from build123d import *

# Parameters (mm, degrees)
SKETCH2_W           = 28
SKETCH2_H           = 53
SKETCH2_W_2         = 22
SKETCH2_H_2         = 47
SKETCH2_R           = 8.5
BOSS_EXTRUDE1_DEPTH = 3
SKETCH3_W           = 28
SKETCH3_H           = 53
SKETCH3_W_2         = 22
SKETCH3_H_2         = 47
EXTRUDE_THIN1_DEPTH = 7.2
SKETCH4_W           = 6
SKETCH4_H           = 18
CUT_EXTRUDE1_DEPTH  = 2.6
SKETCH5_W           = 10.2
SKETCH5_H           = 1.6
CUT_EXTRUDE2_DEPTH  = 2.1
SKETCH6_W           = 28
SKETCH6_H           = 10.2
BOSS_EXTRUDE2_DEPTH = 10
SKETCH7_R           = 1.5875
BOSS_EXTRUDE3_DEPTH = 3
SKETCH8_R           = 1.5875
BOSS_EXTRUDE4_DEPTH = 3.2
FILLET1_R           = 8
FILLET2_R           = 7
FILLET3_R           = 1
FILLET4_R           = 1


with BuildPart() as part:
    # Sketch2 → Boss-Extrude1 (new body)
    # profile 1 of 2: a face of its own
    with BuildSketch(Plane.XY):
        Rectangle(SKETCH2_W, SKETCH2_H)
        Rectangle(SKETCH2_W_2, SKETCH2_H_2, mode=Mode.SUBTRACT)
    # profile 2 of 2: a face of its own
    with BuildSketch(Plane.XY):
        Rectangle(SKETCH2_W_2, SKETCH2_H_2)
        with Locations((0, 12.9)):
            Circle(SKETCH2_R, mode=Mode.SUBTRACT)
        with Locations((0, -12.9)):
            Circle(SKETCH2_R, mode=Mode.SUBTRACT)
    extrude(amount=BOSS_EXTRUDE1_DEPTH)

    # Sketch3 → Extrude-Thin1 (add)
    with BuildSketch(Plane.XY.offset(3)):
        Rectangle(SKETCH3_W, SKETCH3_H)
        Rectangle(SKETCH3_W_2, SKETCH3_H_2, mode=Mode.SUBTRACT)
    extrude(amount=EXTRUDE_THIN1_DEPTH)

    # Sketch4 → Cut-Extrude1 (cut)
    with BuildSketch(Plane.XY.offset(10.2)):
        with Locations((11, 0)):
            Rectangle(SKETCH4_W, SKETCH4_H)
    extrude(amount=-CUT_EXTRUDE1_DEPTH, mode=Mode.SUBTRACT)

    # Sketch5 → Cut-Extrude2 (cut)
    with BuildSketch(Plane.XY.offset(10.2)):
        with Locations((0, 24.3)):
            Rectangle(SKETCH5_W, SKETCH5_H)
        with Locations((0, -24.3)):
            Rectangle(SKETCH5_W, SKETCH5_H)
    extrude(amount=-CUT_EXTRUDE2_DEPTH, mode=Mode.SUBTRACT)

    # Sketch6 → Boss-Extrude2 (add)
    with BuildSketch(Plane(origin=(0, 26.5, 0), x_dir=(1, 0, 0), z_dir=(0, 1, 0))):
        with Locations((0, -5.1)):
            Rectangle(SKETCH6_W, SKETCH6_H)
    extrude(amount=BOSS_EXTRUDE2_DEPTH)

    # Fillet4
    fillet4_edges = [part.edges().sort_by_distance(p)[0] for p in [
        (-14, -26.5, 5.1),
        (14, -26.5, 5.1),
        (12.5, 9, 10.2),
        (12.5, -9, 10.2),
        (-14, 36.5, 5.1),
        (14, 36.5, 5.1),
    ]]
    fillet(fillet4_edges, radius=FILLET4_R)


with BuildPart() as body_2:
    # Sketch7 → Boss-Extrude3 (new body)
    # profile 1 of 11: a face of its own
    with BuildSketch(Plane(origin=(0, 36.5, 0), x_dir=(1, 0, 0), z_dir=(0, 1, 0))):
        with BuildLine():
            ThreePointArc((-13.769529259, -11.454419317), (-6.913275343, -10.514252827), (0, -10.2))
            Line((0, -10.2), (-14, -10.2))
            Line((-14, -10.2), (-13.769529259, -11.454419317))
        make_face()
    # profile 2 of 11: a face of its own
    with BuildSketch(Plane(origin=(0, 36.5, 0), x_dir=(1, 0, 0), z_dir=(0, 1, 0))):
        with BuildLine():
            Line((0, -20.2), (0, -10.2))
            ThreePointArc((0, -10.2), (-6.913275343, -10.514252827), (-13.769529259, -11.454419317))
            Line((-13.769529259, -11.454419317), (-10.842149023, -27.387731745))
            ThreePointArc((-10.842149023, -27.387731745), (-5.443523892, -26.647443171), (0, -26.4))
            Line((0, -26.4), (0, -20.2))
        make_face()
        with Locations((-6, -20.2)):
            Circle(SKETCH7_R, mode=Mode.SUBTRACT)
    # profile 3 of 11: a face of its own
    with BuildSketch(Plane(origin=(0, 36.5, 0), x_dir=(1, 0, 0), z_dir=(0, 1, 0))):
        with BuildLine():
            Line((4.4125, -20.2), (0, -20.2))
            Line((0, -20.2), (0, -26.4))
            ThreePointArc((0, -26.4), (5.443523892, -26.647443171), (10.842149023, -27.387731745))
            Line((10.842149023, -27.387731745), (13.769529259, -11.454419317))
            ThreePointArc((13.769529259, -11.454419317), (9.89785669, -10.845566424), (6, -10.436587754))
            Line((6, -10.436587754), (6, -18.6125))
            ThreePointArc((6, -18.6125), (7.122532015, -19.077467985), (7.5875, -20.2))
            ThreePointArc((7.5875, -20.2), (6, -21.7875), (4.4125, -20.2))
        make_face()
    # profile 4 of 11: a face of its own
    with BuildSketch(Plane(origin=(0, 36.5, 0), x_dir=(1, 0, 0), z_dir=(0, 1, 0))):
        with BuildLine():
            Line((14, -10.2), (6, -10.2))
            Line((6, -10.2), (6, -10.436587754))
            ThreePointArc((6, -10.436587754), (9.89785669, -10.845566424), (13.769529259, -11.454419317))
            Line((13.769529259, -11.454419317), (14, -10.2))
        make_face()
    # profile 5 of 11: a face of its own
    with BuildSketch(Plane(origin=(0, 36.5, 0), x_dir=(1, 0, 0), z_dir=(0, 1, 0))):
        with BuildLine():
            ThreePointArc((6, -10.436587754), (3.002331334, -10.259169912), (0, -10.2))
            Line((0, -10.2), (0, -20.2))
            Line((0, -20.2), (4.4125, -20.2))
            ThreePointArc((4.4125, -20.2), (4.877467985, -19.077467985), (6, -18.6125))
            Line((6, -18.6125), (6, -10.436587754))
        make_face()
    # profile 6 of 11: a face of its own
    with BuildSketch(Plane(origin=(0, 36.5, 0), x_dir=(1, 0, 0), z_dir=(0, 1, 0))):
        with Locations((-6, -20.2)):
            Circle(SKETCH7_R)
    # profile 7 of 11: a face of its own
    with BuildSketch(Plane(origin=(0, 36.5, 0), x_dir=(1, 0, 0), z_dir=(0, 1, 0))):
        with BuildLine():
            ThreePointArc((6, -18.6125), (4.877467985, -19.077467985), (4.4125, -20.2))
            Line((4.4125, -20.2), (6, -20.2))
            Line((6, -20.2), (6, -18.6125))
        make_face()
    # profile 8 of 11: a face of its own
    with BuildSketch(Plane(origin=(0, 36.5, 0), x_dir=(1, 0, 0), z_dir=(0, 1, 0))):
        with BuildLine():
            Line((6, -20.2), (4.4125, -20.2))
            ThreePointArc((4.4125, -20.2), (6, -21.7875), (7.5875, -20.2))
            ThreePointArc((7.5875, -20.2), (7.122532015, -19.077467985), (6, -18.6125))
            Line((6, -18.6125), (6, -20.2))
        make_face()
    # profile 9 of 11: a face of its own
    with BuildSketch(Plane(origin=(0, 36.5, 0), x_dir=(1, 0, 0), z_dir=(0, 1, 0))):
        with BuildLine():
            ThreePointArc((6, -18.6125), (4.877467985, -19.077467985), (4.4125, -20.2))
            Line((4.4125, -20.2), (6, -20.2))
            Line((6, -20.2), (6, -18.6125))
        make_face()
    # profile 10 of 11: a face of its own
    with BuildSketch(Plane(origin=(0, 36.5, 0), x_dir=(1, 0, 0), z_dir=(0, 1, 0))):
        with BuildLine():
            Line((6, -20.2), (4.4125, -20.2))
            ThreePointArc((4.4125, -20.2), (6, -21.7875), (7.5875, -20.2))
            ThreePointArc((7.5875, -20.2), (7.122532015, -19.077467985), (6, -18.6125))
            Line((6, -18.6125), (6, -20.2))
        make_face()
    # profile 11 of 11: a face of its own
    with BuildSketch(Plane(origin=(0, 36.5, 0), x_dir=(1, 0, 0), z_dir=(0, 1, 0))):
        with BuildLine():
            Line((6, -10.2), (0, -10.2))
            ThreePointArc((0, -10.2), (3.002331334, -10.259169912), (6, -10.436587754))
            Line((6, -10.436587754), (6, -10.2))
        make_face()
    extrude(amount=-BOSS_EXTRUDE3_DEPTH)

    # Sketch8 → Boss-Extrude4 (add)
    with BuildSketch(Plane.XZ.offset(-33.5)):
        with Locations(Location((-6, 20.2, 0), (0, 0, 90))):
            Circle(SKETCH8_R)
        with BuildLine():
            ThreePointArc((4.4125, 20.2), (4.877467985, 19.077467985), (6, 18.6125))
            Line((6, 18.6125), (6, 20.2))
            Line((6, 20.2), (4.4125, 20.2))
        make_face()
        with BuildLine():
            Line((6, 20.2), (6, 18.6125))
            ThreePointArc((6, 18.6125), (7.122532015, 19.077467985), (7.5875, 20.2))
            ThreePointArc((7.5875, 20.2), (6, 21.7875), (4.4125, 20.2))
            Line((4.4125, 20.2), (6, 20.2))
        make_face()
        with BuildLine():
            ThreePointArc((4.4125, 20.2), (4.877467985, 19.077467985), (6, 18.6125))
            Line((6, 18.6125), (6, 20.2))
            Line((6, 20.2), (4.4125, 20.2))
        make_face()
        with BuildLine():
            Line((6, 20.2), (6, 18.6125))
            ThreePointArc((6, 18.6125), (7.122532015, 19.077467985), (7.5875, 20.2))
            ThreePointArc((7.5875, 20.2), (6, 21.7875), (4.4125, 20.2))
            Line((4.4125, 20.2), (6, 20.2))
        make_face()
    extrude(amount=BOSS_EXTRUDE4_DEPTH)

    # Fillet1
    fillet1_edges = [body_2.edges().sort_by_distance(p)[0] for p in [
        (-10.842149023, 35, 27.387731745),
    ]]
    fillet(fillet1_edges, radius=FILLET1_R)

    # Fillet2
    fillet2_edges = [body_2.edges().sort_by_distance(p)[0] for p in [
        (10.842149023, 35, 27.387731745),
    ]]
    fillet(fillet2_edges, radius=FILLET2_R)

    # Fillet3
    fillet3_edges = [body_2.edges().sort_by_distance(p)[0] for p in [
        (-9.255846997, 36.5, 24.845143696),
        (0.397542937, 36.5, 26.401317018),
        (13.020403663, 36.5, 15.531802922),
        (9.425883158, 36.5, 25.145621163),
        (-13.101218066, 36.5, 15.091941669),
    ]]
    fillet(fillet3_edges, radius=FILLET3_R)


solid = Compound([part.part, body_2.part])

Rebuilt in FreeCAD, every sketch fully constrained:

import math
import FreeCAD as App
import Part
import Sketcher
from FreeCAD import Vector


def edges_at(feature, points):
    """Names of the edges that pass closest to the given points."""
    edges = feature.Shape.Edges
    near = lambda p: min(range(len(edges)), key=lambda i: edges[i].distToShape(Part.Vertex(*p))[0])
    return sorted({f"Edge{near(p) + 1}" for p in points})

doc = App.newDocument("Part")
body = doc.addObject("PartDesign::Body", "Body")

# Sketch on XY plane
sketch1 = body.newObject("Sketcher::SketchObject", "Sketch")
sketch1.AttachmentSupport = (doc.getObject("XY_Plane"), [""])
sketch1.MapMode = "FlatFace"
sketch1.addGeometry(Part.LineSegment(Vector(-14, 26.5, 0), Vector(-14, -26.5, 0)), False)
sketch1.addGeometry(Part.LineSegment(Vector(-14, -26.5, 0), Vector(14, -26.5, 0)), False)
sketch1.addGeometry(Part.LineSegment(Vector(14, -26.5, 0), Vector(14, 26.5, 0)), False)
sketch1.addGeometry(Part.LineSegment(Vector(14, 26.5, 0), Vector(-14, 26.5, 0)), False)
sketch1.addGeometry(Part.Circle(Vector(0, -12.9, 0), Vector(0, 0, 1), 8.5), False)
sketch1.addGeometry(Part.Circle(Vector(0, 12.9, 0), Vector(0, 0, 1), 8.5), False)
sketch1.addConstraint(Sketcher.Constraint("Coincident", 0, 2, 1, 1))
sketch1.addConstraint(Sketcher.Constraint("Coincident", 1, 2, 2, 1))
sketch1.addConstraint(Sketcher.Constraint("Coincident", 2, 2, 3, 1))
sketch1.addConstraint(Sketcher.Constraint("Coincident", 3, 2, 0, 1))
sketch1.addConstraint(Sketcher.Constraint("Vertical", 0))
sketch1.addConstraint(Sketcher.Constraint("Horizontal", 1))
sketch1.addConstraint(Sketcher.Constraint("Vertical", 2))
sketch1.addConstraint(Sketcher.Constraint("Horizontal", 3))
sketch1.addConstraint(Sketcher.Constraint("Equal", 4, 5))
sketch1.addConstraint(Sketcher.Constraint("Symmetric", 4, 3, 5, 3, -1, 1))
sketch1.addConstraint(Sketcher.Constraint("Symmetric", 0, 2, 2, 2, -1, 1))
sketch1.addConstraint(Sketcher.Constraint("PointOnObject", 4, 3, -2))
sketch1.addConstraint(Sketcher.Constraint("Diameter", 4, 17.0))
sketch1.addConstraint(Sketcher.Constraint("DistanceX", 1, 1, 1, 2, 28.0))
sketch1.addConstraint(Sketcher.Constraint("DistanceY", 0, 2, 0, 1, 53.0))
sketch1.addConstraint(Sketcher.Constraint("DistanceY", 4, 3, -1, 1, 12.9))
pad1 = body.newObject("PartDesign::Pad", "Pad")
pad1.Profile = sketch1
pad1.Length = 3

# Sketch on XY plane
sketch2 = body.newObject("Sketcher::SketchObject", "Sketch001")
sketch2.AttachmentSupport = (doc.getObject("XY_Plane"), [""])
sketch2.MapMode = "FlatFace"
sketch2.AttachmentOffset = App.Placement(Vector(0, 0, 3), App.Rotation())
sketch2.addGeometry(Part.LineSegment(Vector(-14, 26.5, 0), Vector(-14, -26.5, 0)), False)
sketch2.addGeometry(Part.LineSegment(Vector(-14, -26.5, 0), Vector(14, -26.5, 0)), False)
sketch2.addGeometry(Part.LineSegment(Vector(14, -26.5, 0), Vector(14, 26.5, 0)), False)
sketch2.addGeometry(Part.LineSegment(Vector(14, 26.5, 0), Vector(-14, 26.5, 0)), False)
sketch2.addGeometry(Part.LineSegment(Vector(11, -23.5, 0), Vector(-11, -23.5, 0)), False)
sketch2.addGeometry(Part.LineSegment(Vector(-11, -23.5, 0), Vector(-11, 23.5, 0)), False)
sketch2.addGeometry(Part.LineSegment(Vector(-11, 23.5, 0), Vector(11, 23.5, 0)), False)
sketch2.addGeometry(Part.LineSegment(Vector(11, 23.5, 0), Vector(11, -23.5, 0)), False)
sketch2.addConstraint(Sketcher.Constraint("Coincident", 0, 2, 1, 1))
sketch2.addConstraint(Sketcher.Constraint("Coincident", 1, 2, 2, 1))
sketch2.addConstraint(Sketcher.Constraint("Coincident", 2, 2, 3, 1))
sketch2.addConstraint(Sketcher.Constraint("Coincident", 3, 2, 0, 1))
sketch2.addConstraint(Sketcher.Constraint("Coincident", 4, 2, 5, 1))
sketch2.addConstraint(Sketcher.Constraint("Coincident", 5, 2, 6, 1))
sketch2.addConstraint(Sketcher.Constraint("Coincident", 6, 2, 7, 1))
sketch2.addConstraint(Sketcher.Constraint("Coincident", 7, 2, 4, 1))
sketch2.addConstraint(Sketcher.Constraint("Vertical", 0))
sketch2.addConstraint(Sketcher.Constraint("Horizontal", 1))
sketch2.addConstraint(Sketcher.Constraint("Vertical", 2))
sketch2.addConstraint(Sketcher.Constraint("Horizontal", 3))
sketch2.addConstraint(Sketcher.Constraint("Horizontal", 4))
sketch2.addConstraint(Sketcher.Constraint("Vertical", 5))
sketch2.addConstraint(Sketcher.Constraint("Horizontal", 6))
sketch2.addConstraint(Sketcher.Constraint("Vertical", 7))
sketch2.addConstraint(Sketcher.Constraint("Symmetric", 0, 2, 2, 2, -1, 1))
sketch2.addConstraint(Sketcher.Constraint("Symmetric", 4, 2, 6, 2, -1, 1))
sketch2.addConstraint(Sketcher.Constraint("DistanceX", 1, 1, 1, 2, 28.0))
sketch2.addConstraint(Sketcher.Constraint("DistanceX", 4, 2, 4, 1, 22.0))
sketch2.addConstraint(Sketcher.Constraint("DistanceY", 0, 2, 0, 1, 53.0))
sketch2.addConstraint(Sketcher.Constraint("DistanceY", 5, 1, 5, 2, 47.0))
pad2 = body.newObject("PartDesign::Pad", "Pad001")
pad2.Profile = sketch2
pad2.Length = 7.2

# Sketch on XY plane
sketch3 = body.newObject("Sketcher::SketchObject", "Sketch002")
sketch3.AttachmentSupport = (doc.getObject("XY_Plane"), [""])
sketch3.MapMode = "FlatFace"
sketch3.AttachmentOffset = App.Placement(Vector(0, 0, 10.2), App.Rotation())
sketch3.addGeometry(Part.LineSegment(Vector(8, 9, 0), Vector(8, -9, 0)), False)
sketch3.addGeometry(Part.LineSegment(Vector(8, -9, 0), Vector(14, -9, 0)), False)
sketch3.addGeometry(Part.LineSegment(Vector(14, -9, 0), Vector(14, 9, 0)), False)
sketch3.addGeometry(Part.LineSegment(Vector(14, 9, 0), Vector(8, 9, 0)), False)
sketch3.addConstraint(Sketcher.Constraint("Coincident", 0, 2, 1, 1))
sketch3.addConstraint(Sketcher.Constraint("Coincident", 1, 2, 2, 1))
sketch3.addConstraint(Sketcher.Constraint("Coincident", 2, 2, 3, 1))
sketch3.addConstraint(Sketcher.Constraint("Coincident", 3, 2, 0, 1))
sketch3.addConstraint(Sketcher.Constraint("Vertical", 0))
sketch3.addConstraint(Sketcher.Constraint("Horizontal", 1))
sketch3.addConstraint(Sketcher.Constraint("Vertical", 2))
sketch3.addConstraint(Sketcher.Constraint("Horizontal", 3))
sketch3.addConstraint(Sketcher.Constraint("DistanceX", 1, 1, 1, 2, 6.0))
sketch3.addConstraint(Sketcher.Constraint("DistanceY", 0, 2, 0, 1, 18.0))
sketch3.addConstraint(Sketcher.Constraint("DistanceX", -1, 1, 0, 2, 8.0))
sketch3.addConstraint(Sketcher.Constraint("DistanceY", 0, 2, -1, 1, 9.0))
pocket1 = body.newObject("PartDesign::Pocket", "Pocket")
pocket1.Profile = sketch3
pocket1.Length = 2.6

# Sketch on XY plane
sketch4 = body.newObject("Sketcher::SketchObject", "Sketch003")
sketch4.AttachmentSupport = (doc.getObject("XY_Plane"), [""])
sketch4.MapMode = "FlatFace"
sketch4.AttachmentOffset = App.Placement(Vector(0, 0, 10.2), App.Rotation())
sketch4.addGeometry(Part.LineSegment(Vector(-5.1, 25.1, 0), Vector(-5.1, 23.5, 0)), False)
sketch4.addGeometry(Part.LineSegment(Vector(-5.1, 23.5, 0), Vector(5.1, 23.5, 0)), False)
sketch4.addGeometry(Part.LineSegment(Vector(5.1, 23.5, 0), Vector(5.1, 25.1, 0)), False)
sketch4.addGeometry(Part.LineSegment(Vector(5.1, 25.1, 0), Vector(-5.1, 25.1, 0)), False)
sketch4.addGeometry(Part.LineSegment(Vector(-5.1, -23.5, 0), Vector(-5.1, -25.1, 0)), False)
sketch4.addGeometry(Part.LineSegment(Vector(-5.1, -25.1, 0), Vector(5.1, -25.1, 0)), False)
sketch4.addGeometry(Part.LineSegment(Vector(5.1, -25.1, 0), Vector(5.1, -23.5, 0)), False)
sketch4.addGeometry(Part.LineSegment(Vector(5.1, -23.5, 0), Vector(-5.1, -23.5, 0)), False)
sketch4.addConstraint(Sketcher.Constraint("Coincident", 0, 2, 1, 1))
sketch4.addConstraint(Sketcher.Constraint("Coincident", 1, 2, 2, 1))
sketch4.addConstraint(Sketcher.Constraint("Coincident", 2, 2, 3, 1))
sketch4.addConstraint(Sketcher.Constraint("Coincident", 3, 2, 0, 1))
sketch4.addConstraint(Sketcher.Constraint("Coincident", 4, 2, 5, 1))
sketch4.addConstraint(Sketcher.Constraint("Coincident", 5, 2, 6, 1))
sketch4.addConstraint(Sketcher.Constraint("Coincident", 6, 2, 7, 1))
sketch4.addConstraint(Sketcher.Constraint("Coincident", 7, 2, 4, 1))
sketch4.addConstraint(Sketcher.Constraint("Vertical", 0))
sketch4.addConstraint(Sketcher.Constraint("Horizontal", 1))
sketch4.addConstraint(Sketcher.Constraint("Vertical", 2))
sketch4.addConstraint(Sketcher.Constraint("Horizontal", 3))
sketch4.addConstraint(Sketcher.Constraint("Vertical", 4))
sketch4.addConstraint(Sketcher.Constraint("Horizontal", 5))
sketch4.addConstraint(Sketcher.Constraint("Vertical", 6))
sketch4.addConstraint(Sketcher.Constraint("Horizontal", 7))
sketch4.addConstraint(Sketcher.Constraint("Symmetric", 2, 2, 4, 2, -1, 1))
sketch4.addConstraint(Sketcher.Constraint("Symmetric", 0, 2, 6, 2, -1, 1))
sketch4.addConstraint(Sketcher.Constraint("Vertical", 3, 2, 4, 2))
sketch4.addConstraint(Sketcher.Constraint("DistanceX", 1, 1, 1, 2, 10.2))
sketch4.addConstraint(Sketcher.Constraint("DistanceY", 0, 2, 0, 1, 1.6))
sketch4.addConstraint(Sketcher.Constraint("DistanceY", 6, 2, 1, 2, 47.0))
pocket2 = body.newObject("PartDesign::Pocket", "Pocket001")
pocket2.Profile = sketch4
pocket2.Length = 2.1

# Sketch on XZ plane
sketch5 = body.newObject("Sketcher::SketchObject", "Sketch004")
sketch5.AttachmentSupport = (doc.getObject("XZ_Plane"), [""])
sketch5.MapMode = "FlatFace"
sketch5.AttachmentOffset = App.Placement(Vector(0, 0, -26.5), App.Rotation())
sketch5.addGeometry(Part.LineSegment(Vector(-14, 0, 0), Vector(-14, 10.2, 0)), False)
sketch5.addGeometry(Part.LineSegment(Vector(-14, 10.2, 0), Vector(14, 10.2, 0)), False)
sketch5.addGeometry(Part.LineSegment(Vector(14, 10.2, 0), Vector(14, 0, 0)), False)
sketch5.addGeometry(Part.LineSegment(Vector(14, 0, 0), Vector(-14, 0, 0)), False)
sketch5.addConstraint(Sketcher.Constraint("Coincident", 0, 2, 1, 1))
sketch5.addConstraint(Sketcher.Constraint("Coincident", 1, 2, 2, 1))
sketch5.addConstraint(Sketcher.Constraint("Coincident", 2, 2, 3, 1))
sketch5.addConstraint(Sketcher.Constraint("Coincident", 3, 2, 0, 1))
sketch5.addConstraint(Sketcher.Constraint("Vertical", 0))
sketch5.addConstraint(Sketcher.Constraint("Horizontal", 1))
sketch5.addConstraint(Sketcher.Constraint("Vertical", 2))
sketch5.addConstraint(Sketcher.Constraint("Horizontal", 3))
sketch5.addConstraint(Sketcher.Constraint("Symmetric", 2, 2, 3, 2, -1, 1))
sketch5.addConstraint(Sketcher.Constraint("DistanceX", 1, 1, 1, 2, 28.0))
sketch5.addConstraint(Sketcher.Constraint("DistanceY", 0, 1, 0, 2, 10.2))
pad3 = body.newObject("PartDesign::Pad", "Pad002")
pad3.Profile = sketch5
pad3.Length = 10
pad3.Reversed = True
doc.recompute()

fillet = body.newObject("PartDesign::Fillet", "Fillet")
fillet.Base = (pad3, edges_at(pad3, [
    (-14, -26.5, 5.1),
    (14, -26.5, 5.1),
    (12.5, 9, 10.2),
    (12.5, -9, 10.2),
    (-14, 36.5, 5.1),
    (14, 36.5, 5.1),
]))
fillet.Radius = 1
body2 = doc.addObject("PartDesign::Body", "Body001")

# Sketch on XZ plane
sketch6 = body2.newObject("Sketcher::SketchObject", "Sketch005")
sketch6.AttachmentSupport = (doc.getObject("XZ_Plane001"), [""])
sketch6.MapMode = "FlatFace"
sketch6.AttachmentOffset = App.Placement(Vector(0, 0, -36.5), App.Rotation())
sketch6.addGeometry(Part.LineSegment(Vector(-14, 10.2, 0), Vector(-13.769529, 11.454419, 0)), False)
sketch6.addGeometry(Part.LineSegment(Vector(-13.769529, 11.454419, 0), Vector(-10.842149, 27.387732, 0)), False)
sketch6.addGeometry(Part.ArcOfCircle(Part.Circle(Vector(0, 86.4, 0), Vector(0, 0, 1), 60), math.radians(-100.41068), math.radians(-90)), False)
sketch6.addGeometry(Part.ArcOfCircle(Part.Circle(Vector(0, 86.4, 0), Vector(0, 0, 1), 60), math.radians(-90), math.radians(-79.58932)), False)
sketch6.addGeometry(Part.LineSegment(Vector(10.842149, 27.387732, 0), Vector(13.769529, 11.454419, 0)), False)
sketch6.addGeometry(Part.LineSegment(Vector(13.769529, 11.454419, 0), Vector(14, 10.2, 0)), False)
sketch6.addGeometry(Part.LineSegment(Vector(14, 10.2, 0), Vector(-14, 10.2, 0)), False)
sketch6.addConstraint(Sketcher.Constraint("Coincident", 0, 2, 1, 1))
sketch6.addConstraint(Sketcher.Constraint("Coincident", 1, 2, 2, 1))
sketch6.addConstraint(Sketcher.Constraint("Tangent", 2, 2, 3, 1))
sketch6.addConstraint(Sketcher.Constraint("Coincident", 3, 2, 4, 1))
sketch6.addConstraint(Sketcher.Constraint("Coincident", 4, 2, 5, 1))
sketch6.addConstraint(Sketcher.Constraint("Coincident", 5, 2, 6, 1))
sketch6.addConstraint(Sketcher.Constraint("Coincident", 6, 2, 0, 1))
sketch6.addConstraint(Sketcher.Constraint("Horizontal", 6))
sketch6.addConstraint(Sketcher.Constraint("Equal", 2, 3))
sketch6.addConstraint(Sketcher.Constraint("Symmetric", 1, 2, 3, 2, -2))
sketch6.addConstraint(Sketcher.Constraint("Symmetric", 0, 2, 4, 2, -2))
sketch6.addConstraint(Sketcher.Constraint("PointOnObject", 2, 2, -2))
sketch6.addConstraint(Sketcher.Constraint("Parallel", 0, 1))
sketch6.addConstraint(Sketcher.Constraint("Parallel", 4, 5))
sketch6.addConstraint(Sketcher.Constraint("Radius", 2, 60.0))
sketch6.addConstraint(Sketcher.Constraint("DistanceX", 6, 2, 6, 1, 28.0))
sketch6.addConstraint(Sketcher.Constraint("Distance", 1, 16.2))
sketch6.addConstraint(Sketcher.Constraint("DistanceY", -1, 1, 2, 3, 86.4))
sketch6.addConstraint(Sketcher.Constraint("DistanceY", -1, 1, 5, 2, 10.2))
sketch6.addConstraint(Sketcher.Constraint("DistanceX", 1, 2, 3, 2, 21.684298))
pad4 = body2.newObject("PartDesign::Pad", "Pad003")
pad4.Profile = sketch6
pad4.Length = 3

# Sketch on XZ plane
sketch7 = body2.newObject("Sketcher::SketchObject", "Sketch006")
sketch7.AttachmentSupport = (doc.getObject("XZ_Plane001"), [""])
sketch7.MapMode = "FlatFace"
sketch7.AttachmentOffset = App.Placement(Vector(0, 0, -33.5), App.Rotation())
sketch7.addGeometry(Part.Circle(Vector(-6, 20.2, 0), Vector(0, 0, 1), 1.5875), False)
sketch7.addGeometry(Part.ArcOfCircle(Part.Circle(Vector(6, 20.2, 0), Vector(0, 0, 1), 1.5875), math.radians(180), math.radians(270)), False)
sketch7.addGeometry(Part.ArcOfCircle(Part.Circle(Vector(6, 20.2, 0), Vector(0, 0, 1), 1.5875), math.radians(-90), math.radians(0)), False)
sketch7.addGeometry(Part.ArcOfCircle(Part.Circle(Vector(6, 20.2, 0), Vector(0, 0, 1), 1.5875), math.radians(0), math.radians(180)), False)
sketch7.addConstraint(Sketcher.Constraint("Tangent", 1, 2, 2, 1))
sketch7.addConstraint(Sketcher.Constraint("Tangent", 2, 2, 3, 1))
sketch7.addConstraint(Sketcher.Constraint("Tangent", 3, 2, 1, 1))
sketch7.addConstraint(Sketcher.Constraint("Equal", 0, 1))
sketch7.addConstraint(Sketcher.Constraint("Symmetric", 0, 3, 1, 3, -2))
sketch7.addConstraint(Sketcher.Constraint("Horizontal", 3, 3, 2, 2))
sketch7.addConstraint(Sketcher.Constraint("Horizontal", 2, 2, 3, 2))
sketch7.addConstraint(Sketcher.Constraint("Vertical", 3, 3, 1, 2))
sketch7.addConstraint(Sketcher.Constraint("Diameter", 0, 3.175))
sketch7.addConstraint(Sketcher.Constraint("DistanceX", 0, 3, -1, 1, 6.0))
sketch7.addConstraint(Sketcher.Constraint("DistanceY", -1, 1, 0, 3, 20.2))
pad5 = body2.newObject("PartDesign::Pad", "Pad004")
pad5.Profile = sketch7
pad5.Length = 3.2
doc.recompute()

fillet2 = body2.newObject("PartDesign::Fillet", "Fillet001")
fillet2.Base = (pad5, edges_at(pad5, [(-10.842, 35, 27.388)]))
fillet2.Radius = 8
doc.recompute()

fillet3 = body2.newObject("PartDesign::Fillet", "Fillet002")
fillet3.Base = (fillet2, edges_at(fillet2, [(10.842, 35, 27.388)]))
fillet3.Radius = 7
doc.recompute()

fillet4 = body2.newObject("PartDesign::Fillet", "Fillet003")
fillet4.Base = (fillet3, edges_at(fillet3, [
    (-9.256, 36.5, 24.845),
    (2.31, 36.5, 26.444),
    (12.905, 36.5, 16.159),
    (9.426, 36.5, 25.146),
    (-12.986, 36.5, 15.719),
]))
fillet4.Radius = 1

doc.recompute()
